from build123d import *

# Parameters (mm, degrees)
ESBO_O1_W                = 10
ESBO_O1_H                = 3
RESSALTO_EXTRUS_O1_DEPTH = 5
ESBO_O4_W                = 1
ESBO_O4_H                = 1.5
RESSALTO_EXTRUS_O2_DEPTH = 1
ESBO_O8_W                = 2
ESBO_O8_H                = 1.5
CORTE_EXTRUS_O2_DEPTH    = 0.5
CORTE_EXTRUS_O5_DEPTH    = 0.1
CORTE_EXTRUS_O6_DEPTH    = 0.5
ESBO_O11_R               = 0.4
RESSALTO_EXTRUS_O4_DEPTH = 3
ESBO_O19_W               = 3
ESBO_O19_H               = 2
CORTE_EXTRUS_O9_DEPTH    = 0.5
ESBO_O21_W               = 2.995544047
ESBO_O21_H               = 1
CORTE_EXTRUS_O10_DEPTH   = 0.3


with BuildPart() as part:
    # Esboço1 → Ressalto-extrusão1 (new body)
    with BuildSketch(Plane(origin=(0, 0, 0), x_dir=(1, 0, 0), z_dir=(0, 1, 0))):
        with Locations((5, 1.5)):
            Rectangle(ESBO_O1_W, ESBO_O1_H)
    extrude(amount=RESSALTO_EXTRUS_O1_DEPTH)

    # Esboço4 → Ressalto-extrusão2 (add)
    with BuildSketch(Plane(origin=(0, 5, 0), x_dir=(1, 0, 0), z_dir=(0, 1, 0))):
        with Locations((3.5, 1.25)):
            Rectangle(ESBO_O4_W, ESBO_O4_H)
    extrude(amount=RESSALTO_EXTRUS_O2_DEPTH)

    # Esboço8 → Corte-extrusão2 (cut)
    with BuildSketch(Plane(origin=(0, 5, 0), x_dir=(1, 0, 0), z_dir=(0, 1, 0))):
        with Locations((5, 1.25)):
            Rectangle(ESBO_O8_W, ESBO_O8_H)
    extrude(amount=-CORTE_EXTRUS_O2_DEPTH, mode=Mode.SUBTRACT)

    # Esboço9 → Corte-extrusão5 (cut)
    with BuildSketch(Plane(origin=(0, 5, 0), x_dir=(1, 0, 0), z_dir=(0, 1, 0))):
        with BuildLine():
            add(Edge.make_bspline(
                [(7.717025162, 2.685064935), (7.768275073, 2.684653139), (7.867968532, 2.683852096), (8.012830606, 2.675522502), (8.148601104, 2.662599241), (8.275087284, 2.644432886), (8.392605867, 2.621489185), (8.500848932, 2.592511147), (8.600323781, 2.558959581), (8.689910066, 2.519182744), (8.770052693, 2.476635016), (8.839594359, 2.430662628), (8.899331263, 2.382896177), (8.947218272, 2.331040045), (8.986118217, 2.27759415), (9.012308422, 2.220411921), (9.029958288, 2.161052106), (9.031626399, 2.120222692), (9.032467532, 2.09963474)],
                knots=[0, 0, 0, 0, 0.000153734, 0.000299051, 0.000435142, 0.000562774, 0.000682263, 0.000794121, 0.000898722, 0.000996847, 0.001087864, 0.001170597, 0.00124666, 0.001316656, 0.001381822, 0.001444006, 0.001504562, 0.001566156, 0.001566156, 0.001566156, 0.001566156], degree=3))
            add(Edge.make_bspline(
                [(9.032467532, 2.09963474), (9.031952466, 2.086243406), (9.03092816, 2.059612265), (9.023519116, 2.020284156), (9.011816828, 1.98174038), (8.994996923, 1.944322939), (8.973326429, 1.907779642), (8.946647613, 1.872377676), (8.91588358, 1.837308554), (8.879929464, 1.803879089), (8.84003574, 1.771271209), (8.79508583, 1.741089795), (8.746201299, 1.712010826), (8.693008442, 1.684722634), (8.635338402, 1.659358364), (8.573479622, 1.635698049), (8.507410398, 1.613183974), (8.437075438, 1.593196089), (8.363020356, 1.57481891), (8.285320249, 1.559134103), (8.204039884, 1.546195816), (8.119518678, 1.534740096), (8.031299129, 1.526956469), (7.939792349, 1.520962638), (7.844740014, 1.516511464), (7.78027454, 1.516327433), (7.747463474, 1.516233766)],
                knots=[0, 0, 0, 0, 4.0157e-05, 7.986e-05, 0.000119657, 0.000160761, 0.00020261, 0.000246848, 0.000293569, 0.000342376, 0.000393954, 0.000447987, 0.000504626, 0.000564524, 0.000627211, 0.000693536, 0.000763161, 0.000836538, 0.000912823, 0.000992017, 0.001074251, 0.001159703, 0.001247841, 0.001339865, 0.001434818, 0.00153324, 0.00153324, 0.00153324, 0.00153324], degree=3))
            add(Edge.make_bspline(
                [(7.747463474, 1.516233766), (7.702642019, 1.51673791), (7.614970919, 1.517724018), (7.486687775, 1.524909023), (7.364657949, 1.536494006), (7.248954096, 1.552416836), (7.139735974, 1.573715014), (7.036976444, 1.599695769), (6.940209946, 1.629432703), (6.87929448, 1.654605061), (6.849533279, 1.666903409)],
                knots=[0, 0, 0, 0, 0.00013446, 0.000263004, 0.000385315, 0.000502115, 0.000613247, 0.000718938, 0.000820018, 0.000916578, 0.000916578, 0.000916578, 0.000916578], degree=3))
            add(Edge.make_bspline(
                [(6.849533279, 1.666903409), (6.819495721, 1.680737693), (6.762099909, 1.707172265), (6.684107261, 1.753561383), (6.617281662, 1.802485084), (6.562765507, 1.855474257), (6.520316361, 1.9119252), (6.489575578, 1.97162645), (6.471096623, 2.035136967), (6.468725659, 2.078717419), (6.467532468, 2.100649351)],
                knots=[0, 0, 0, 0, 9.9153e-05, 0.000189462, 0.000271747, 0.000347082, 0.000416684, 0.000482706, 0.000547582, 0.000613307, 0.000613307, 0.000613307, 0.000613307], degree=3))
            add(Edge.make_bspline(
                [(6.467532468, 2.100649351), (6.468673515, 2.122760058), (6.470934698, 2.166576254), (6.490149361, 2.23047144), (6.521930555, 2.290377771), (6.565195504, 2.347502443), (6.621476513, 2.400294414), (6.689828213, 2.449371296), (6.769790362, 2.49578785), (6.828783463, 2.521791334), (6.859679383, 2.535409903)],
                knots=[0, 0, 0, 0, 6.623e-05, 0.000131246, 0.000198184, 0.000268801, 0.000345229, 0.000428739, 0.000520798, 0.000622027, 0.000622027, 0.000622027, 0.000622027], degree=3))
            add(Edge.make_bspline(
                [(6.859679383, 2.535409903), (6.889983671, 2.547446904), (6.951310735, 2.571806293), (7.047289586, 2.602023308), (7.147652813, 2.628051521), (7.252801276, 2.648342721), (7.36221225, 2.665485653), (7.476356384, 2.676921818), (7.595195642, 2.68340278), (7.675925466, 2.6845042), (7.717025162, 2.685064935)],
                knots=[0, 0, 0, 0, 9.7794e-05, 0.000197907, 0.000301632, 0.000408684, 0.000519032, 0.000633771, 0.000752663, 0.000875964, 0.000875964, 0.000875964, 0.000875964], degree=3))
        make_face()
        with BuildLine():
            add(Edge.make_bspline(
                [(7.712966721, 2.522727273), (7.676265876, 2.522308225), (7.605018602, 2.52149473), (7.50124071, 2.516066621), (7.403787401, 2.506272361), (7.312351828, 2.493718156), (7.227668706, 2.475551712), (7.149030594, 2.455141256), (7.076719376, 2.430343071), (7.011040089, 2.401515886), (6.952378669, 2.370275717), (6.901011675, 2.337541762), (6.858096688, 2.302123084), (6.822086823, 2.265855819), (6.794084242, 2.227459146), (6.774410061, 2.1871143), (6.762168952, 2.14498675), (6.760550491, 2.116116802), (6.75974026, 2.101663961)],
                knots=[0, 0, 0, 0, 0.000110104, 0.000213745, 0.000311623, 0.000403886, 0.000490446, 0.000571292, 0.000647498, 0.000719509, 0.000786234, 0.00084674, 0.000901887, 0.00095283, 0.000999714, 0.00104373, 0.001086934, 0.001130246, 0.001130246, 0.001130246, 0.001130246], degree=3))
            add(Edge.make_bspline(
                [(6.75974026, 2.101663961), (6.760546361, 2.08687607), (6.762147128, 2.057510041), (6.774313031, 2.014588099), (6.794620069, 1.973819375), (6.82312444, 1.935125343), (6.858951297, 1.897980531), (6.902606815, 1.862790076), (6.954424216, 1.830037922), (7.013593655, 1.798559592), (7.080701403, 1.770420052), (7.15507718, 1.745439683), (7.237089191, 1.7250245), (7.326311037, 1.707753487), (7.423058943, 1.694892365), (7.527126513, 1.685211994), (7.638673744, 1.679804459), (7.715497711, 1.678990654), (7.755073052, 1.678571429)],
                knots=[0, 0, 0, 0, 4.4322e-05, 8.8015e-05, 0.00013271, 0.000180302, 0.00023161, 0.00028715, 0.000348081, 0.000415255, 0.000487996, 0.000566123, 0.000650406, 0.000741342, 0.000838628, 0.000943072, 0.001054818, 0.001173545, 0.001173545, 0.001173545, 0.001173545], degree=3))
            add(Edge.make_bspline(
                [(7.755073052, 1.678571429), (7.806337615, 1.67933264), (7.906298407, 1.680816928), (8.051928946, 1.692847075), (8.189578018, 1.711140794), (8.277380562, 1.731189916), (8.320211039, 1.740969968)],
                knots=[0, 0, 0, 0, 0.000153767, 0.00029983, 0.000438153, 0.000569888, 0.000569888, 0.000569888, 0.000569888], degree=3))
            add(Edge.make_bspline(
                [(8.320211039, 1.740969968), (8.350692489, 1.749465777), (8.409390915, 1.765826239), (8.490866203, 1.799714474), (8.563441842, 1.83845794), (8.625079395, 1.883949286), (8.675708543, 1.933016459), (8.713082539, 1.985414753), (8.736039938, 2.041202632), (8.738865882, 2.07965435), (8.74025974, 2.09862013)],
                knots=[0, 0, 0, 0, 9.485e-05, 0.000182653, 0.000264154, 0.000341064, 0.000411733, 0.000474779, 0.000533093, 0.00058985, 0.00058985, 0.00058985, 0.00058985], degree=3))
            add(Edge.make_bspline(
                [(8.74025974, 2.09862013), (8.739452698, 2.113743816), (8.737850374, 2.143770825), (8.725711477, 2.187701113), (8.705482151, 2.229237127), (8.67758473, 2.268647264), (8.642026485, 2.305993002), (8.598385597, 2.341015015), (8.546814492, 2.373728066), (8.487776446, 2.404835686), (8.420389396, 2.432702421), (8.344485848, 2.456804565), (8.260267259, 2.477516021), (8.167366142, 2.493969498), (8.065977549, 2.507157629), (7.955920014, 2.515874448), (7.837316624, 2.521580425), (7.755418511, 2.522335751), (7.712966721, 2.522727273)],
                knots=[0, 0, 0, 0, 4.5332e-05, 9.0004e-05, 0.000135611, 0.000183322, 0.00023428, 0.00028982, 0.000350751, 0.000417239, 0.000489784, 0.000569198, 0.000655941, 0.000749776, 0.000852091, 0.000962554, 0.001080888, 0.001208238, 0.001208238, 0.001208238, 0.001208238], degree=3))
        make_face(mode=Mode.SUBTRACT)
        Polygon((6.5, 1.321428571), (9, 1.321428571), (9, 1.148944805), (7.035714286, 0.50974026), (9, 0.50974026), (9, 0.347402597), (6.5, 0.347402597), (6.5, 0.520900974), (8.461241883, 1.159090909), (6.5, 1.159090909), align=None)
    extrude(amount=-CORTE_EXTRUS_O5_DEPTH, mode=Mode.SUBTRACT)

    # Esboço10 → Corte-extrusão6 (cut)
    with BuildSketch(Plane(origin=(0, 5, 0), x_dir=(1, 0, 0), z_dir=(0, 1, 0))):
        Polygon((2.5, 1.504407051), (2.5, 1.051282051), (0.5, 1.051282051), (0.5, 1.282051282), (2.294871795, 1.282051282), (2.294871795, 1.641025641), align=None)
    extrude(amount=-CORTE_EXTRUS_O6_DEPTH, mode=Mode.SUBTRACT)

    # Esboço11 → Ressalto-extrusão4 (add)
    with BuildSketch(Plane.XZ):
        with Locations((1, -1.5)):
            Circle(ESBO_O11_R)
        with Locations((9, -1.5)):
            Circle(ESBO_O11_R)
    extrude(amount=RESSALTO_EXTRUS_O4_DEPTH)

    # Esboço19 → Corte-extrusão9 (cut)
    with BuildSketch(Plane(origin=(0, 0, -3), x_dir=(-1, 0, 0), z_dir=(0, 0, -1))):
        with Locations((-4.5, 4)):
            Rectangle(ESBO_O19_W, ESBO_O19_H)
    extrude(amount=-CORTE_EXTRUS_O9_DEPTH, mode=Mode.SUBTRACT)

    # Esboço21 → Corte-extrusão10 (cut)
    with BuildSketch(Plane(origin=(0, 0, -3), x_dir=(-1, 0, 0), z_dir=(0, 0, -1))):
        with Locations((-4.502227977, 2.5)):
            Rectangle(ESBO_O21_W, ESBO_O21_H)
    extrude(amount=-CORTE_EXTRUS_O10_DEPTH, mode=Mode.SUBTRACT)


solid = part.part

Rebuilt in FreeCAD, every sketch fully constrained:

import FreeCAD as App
import Part
import Sketcher

V = App.Vector

doc = App.newDocument("Part")
body = doc.addObject("PartDesign::Body", "Body")

# Sketch on XZ plane
sketch1 = doc.addObject("Sketcher::SketchObject", "Sketch")
body.addObject(sketch1)
sketch1.AttachmentSupport = (doc.XZ_Plane, [""])
sketch1.MapMode = "FlatFace"
sketch1.addGeometry([
    Part.LineSegment(V(0, -3, 0), V(0, 0, 0)),
    Part.LineSegment(V(0, 0, 0), V(10, 0, 0)),
    Part.LineSegment(V(10, 0, 0), V(10, -3, 0)),
    Part.LineSegment(V(10, -3, 0), V(0, -3, 0)),
], False)
sketch1.addConstraint([
    Sketcher.Constraint("Coincident", 0, 2, 1, 1),
    Sketcher.Constraint("Coincident", 1, 2, 2, 1),
    Sketcher.Constraint("Coincident", 2, 2, 3, 1),
    Sketcher.Constraint("Coincident", 3, 2, 0, 1),
    Sketcher.Constraint("Vertical", 0),
    Sketcher.Constraint("Horizontal", 1),
    Sketcher.Constraint("Vertical", 2),
    Sketcher.Constraint("Horizontal", 3),
    Sketcher.Constraint("Coincident", 0, 2, -1, 1),
    Sketcher.Constraint("DistanceX", 1, 1, 1, 2, 10.0),
    Sketcher.Constraint("DistanceY", 0, 1, 0, 2, 3.0),
])
pad1 = doc.addObject("PartDesign::Pad", "Pad")
body.addObject(pad1)
pad1.Profile = sketch1
pad1.Length = 5
pad1.Reversed = True

# Sketch on XZ plane
sketch2 = doc.addObject("Sketcher::SketchObject", "Sketch001")
body.addObject(sketch2)
sketch2.AttachmentSupport = (doc.XZ_Plane, [""])
sketch2.MapMode = "FlatFace"
sketch2.AttachmentOffset = App.Placement(V(0, 0, -5), App.Rotation())
sketch2.addGeometry([
    Part.LineSegment(V(3, -2, 0), V(3, -0.5, 0)),
    Part.LineSegment(V(3, -0.5, 0), V(4, -0.5, 0)),
    Part.LineSegment(V(4, -0.5, 0), V(4, -2, 0)),
    Part.LineSegment(V(4, -2, 0), V(3, -2, 0)),
], False)
sketch2.addConstraint([
    Sketcher.Constraint("Coincident", 0, 2, 1, 1),
    Sketcher.Constraint("Coincident", 1, 2, 2, 1),
    Sketcher.Constraint("Coincident", 2, 2, 3, 1),
    Sketcher.Constraint("Coincident", 3, 2, 0, 1),
    Sketcher.Constraint("Vertical", 0),
    Sketcher.Constraint("Horizontal", 1),
    Sketcher.Constraint("Vertical", 2),
    Sketcher.Constraint("Horizontal", 3),
    Sketcher.Constraint("DistanceX", 1, 1, 1, 2, 1.0),
    Sketcher.Constraint("DistanceY", 0, 1, 0, 2, 1.5),
    Sketcher.Constraint("DistanceX", -1, 1, 0, 2, 3.0),
    Sketcher.Constraint("DistanceY", 2, 2, -1, 1, 2.0),
])
pad2 = doc.addObject("PartDesign::Pad", "Pad001")
body.addObject(pad2)
pad2.Profile = sketch2
pad2.Length = 1
pad2.Reversed = True

# Sketch on XZ plane
sketch3 = doc.addObject("Sketcher::SketchObject", "Sketch002")
body.addObject(sketch3)
sketch3.AttachmentSupport = (doc.XZ_Plane, [""])
sketch3.MapMode = "FlatFace"
sketch3.AttachmentOffset = App.Placement(V(0, 0, -5), App.Rotation())
sketch3.addGeometry([
    Part.LineSegment(V(4, -2, 0), V(4, -0.5, 0)),
    Part.LineSegment(V(4, -0.5, 0), V(6, -0.5, 0)),
    Part.LineSegment(V(6, -0.5, 0), V(6, -2, 0)),
    Part.LineSegment(V(6, -2, 0), V(4, -2, 0)),
], False)
sketch3.addConstraint([
    Sketcher.Constraint("Coincident", 0, 2, 1, 1),
    Sketcher.Constraint("Coincident", 1, 2, 2, 1),
    Sketcher.Constraint("Coincident", 2, 2, 3, 1),
    Sketcher.Constraint("Coincident", 3, 2, 0, 1),
    Sketcher.Constraint("Vertical", 0),
    Sketcher.Constraint("Horizontal", 1),
    Sketcher.Constraint("Vertical", 2),
    Sketcher.Constraint("Horizontal", 3),
    Sketcher.Constraint("DistanceX", 1, 1, 1, 2, 2.0),
    Sketcher.Constraint("DistanceY", 0, 1, 0, 2, 1.5),
    Sketcher.Constraint("DistanceX", -1, 1, 0, 2, 4.0),
    Sketcher.Constraint("DistanceY", 2, 2, -1, 1, 2.0),
])
pocket1 = doc.addObject("PartDesign::Pocket", "Pocket")
body.addObject(pocket1)
pocket1.Profile = sketch3
pocket1.Length = 0.5
pocket1.Reversed = True

# Sketch on XZ plane
sketch4 = doc.addObject("Sketcher::SketchObject", "Sketch003")
body.addObject(sketch4)
sketch4.AttachmentSupport = (doc.XZ_Plane, [""])
sketch4.MapMode = "FlatFace"
sketch4.AttachmentOffset = App.Placement(V(0, 0, -5), App.Rotation())
sketch4.addGeometry([
    Part.BSplineCurve([V(7.717025, -2.685065, 0), V(7.768275, -2.684653, 0), V(7.867969, -2.683852, 0), V(8.012831, -2.675523, 0), V(8.148601, -2.662599, 0), V(8.275087, -2.644433, 0), V(8.392606, -2.621489, 0), V(8.500849, -2.592511, 0), V(8.600324, -2.55896, 0), V(8.68991, -2.519183, 0), V(8.770053, -2.476635, 0), V(8.839594, -2.430663, 0), V(8.899331, -2.382896, 0), V(8.947218, -2.33104, 0), V(8.986118, -2.277594, 0), V(9.012308, -2.220412, 0), V(9.029958, -2.161052, 0), V(9.031626, -2.120223, 0), V(9.032468, -2.099635, 0)], [4, 1, 1, 1, 1, 1, 1, 1, 1, 1, 1, 1, 1, 1, 1, 1, 4], [0, 0.000153734, 0.000299051, 0.000435142, 0.000562774, 0.000682263, 0.000794121, 0.000898722, 0.000996847, 0.001087864, 0.001170597, 0.00124666, 0.001316656, 0.001381822, 0.001444006, 0.001504562, 0.001566156], False, 3, [1, 1, 1, 1, 1, 1, 1, 1, 1, 1, 1, 1, 1, 1, 1, 1, 1, 1, 1], False),  # 0
    Part.BSplineCurve([V(6.859679, -2.53541, 0), V(6.889984, -2.547447, 0), V(6.951311, -2.571806, 0), V(7.04729, -2.602023, 0), V(7.147653, -2.628052, 0), V(7.252801, -2.648343, 0), V(7.362212, -2.665486, 0), V(7.476356, -2.676922, 0), V(7.595196, -2.683403, 0), V(7.675925, -2.684504, 0), V(7.717025, -2.685065, 0)], [4, 1, 1, 1, 1, 1, 1, 1, 4], [0, 0.000097794, 0.000197907, 0.000301632, 0.000408684, 0.000519032, 0.000633771, 0.000752663, 0.000875964], False, 3, [1, 1, 1, 1, 1, 1, 1, 1, 1, 1, 1], False),  # 1
    Part.BSplineCurve([V(6.467532, -2.100649, 0), V(6.468674, -2.12276, 0), V(6.470935, -2.166576, 0), V(6.490149, -2.230471, 0), V(6.521931, -2.290378, 0), V(6.565196, -2.347502, 0), V(6.621477, -2.400294, 0), V(6.689828, -2.449371, 0), V(6.76979, -2.495788, 0), V(6.828783, -2.521791, 0), V(6.859679, -2.53541, 0)], [4, 1, 1, 1, 1, 1, 1, 1, 4], [0, 0.00006623, 0.000131246, 0.000198184, 0.000268801, 0.000345229, 0.000428739, 0.000520798, 0.000622027], False, 3, [1, 1, 1, 1, 1, 1, 1, 1, 1, 1, 1], False),  # 2
    Part.BSplineCurve([V(6.849533, -1.666903, 0), V(6.819496, -1.680738, 0), V(6.7621, -1.707172, 0), V(6.684107, -1.753561, 0), V(6.617282, -1.802485, 0), V(6.562766, -1.855474, 0), V(6.520316, -1.911925, 0), V(6.489576, -1.971626, 0), V(6.471097, -2.035137, 0), V(6.468726, -2.078717, 0), V(6.467532, -2.100649, 0)], [4, 1, 1, 1, 1, 1, 1, 1, 4], [0, 0.000099153, 0.000189462, 0.000271747, 0.000347082, 0.000416684, 0.000482706, 0.000547582, 0.000613307], False, 3, [1, 1, 1, 1, 1, 1, 1, 1, 1, 1, 1], False),  # 3
    Part.BSplineCurve([V(7.747463, -1.516234, 0), V(7.702642, -1.516738, 0), V(7.614971, -1.517724, 0), V(7.486688, -1.524909, 0), V(7.364658, -1.536494, 0), V(7.248954, -1.552417, 0), V(7.139736, -1.573715, 0), V(7.036976, -1.599696, 0), V(6.94021, -1.629433, 0), V(6.879294, -1.654605, 0), V(6.849533, -1.666903, 0)], [4, 1, 1, 1, 1, 1, 1, 1, 4], [0, 0.00013446, 0.000263004, 0.000385315, 0.000502115, 0.000613247, 0.000718938, 0.000820018, 0.000916578], False, 3, [1, 1, 1, 1, 1, 1, 1, 1, 1, 1, 1], False),  # 4
    Part.BSplineCurve([V(9.032468, -2.099635, 0), V(9.031952, -2.086243, 0), V(9.030928, -2.059612, 0), V(9.023519, -2.020284, 0), V(9.011817, -1.98174, 0), V(8.994997, -1.944323, 0), V(8.973326, -1.90778, 0), V(8.946648, -1.872378, 0), V(8.915884, -1.837309, 0), V(8.879929, -1.803879, 0), V(8.840036, -1.771271, 0), V(8.795086, -1.74109, 0), V(8.746201, -1.712011, 0), V(8.693008, -1.684723, 0), V(8.635338, -1.659358, 0), V(8.57348, -1.635698, 0), V(8.50741, -1.613184, 0), V(8.437075, -1.593196, 0), V(8.36302, -1.574819, 0), V(8.28532, -1.559134, 0), V(8.20404, -1.546196, 0), V(8.119519, -1.53474, 0), V(8.031299, -1.526956, 0), V(7.939792, -1.520963, 0), V(7.84474, -1.516511, 0), V(7.780275, -1.516327, 0), V(7.747463, -1.516234, 0)], [4, 1, 1, 1, 1, 1, 1, 1, 1, 1, 1, 1, 1, 1, 1, 1, 1, 1, 1, 1, 1, 1, 1, 1, 4], [0, 0.000040157, 0.00007986, 0.000119657, 0.000160761, 0.00020261, 0.000246848, 0.000293569, 0.000342376, 0.000393954, 0.000447987, 0.000504626, 0.000564524, 0.000627211, 0.000693536, 0.000763161, 0.000836538, 0.000912823, 0.000992017, 0.001074251, 0.001159703, 0.001247841, 0.001339865, 0.001434818, 0.00153324], False, 3, [1, 1, 1, 1, 1, 1, 1, 1, 1, 1, 1, 1, 1, 1, 1, 1, 1, 1, 1, 1, 1, 1, 1, 1, 1, 1, 1], False),  # 5
    Part.BSplineCurve([V(8.74026, -2.09862, 0), V(8.739453, -2.113744, 0), V(8.73785, -2.143771, 0), V(8.725711, -2.187701, 0), V(8.705482, -2.229237, 0), V(8.677585, -2.268647, 0), V(8.642026, -2.305993, 0), V(8.598386, -2.341015, 0), V(8.546814, -2.373728, 0), V(8.487776, -2.404836, 0), V(8.420389, -2.432702, 0), V(8.344486, -2.456805, 0), V(8.260267, -2.477516, 0), V(8.167366, -2.493969, 0), V(8.065978, -2.507158, 0), V(7.95592, -2.515874, 0), V(7.837317, -2.52158, 0), V(7.755419, -2.522336, 0), V(7.712967, -2.522727, 0)], [4, 1, 1, 1, 1, 1, 1, 1, 1, 1, 1, 1, 1, 1, 1, 1, 4], [0, 0.000045332, 0.000090004, 0.000135611, 0.000183322, 0.00023428, 0.00028982, 0.000350751, 0.000417239, 0.000489784, 0.000569198, 0.000655941, 0.000749776, 0.000852091, 0.000962554, 0.001080888, 0.001208238], False, 3, [1, 1, 1, 1, 1, 1, 1, 1, 1, 1, 1, 1, 1, 1, 1, 1, 1, 1, 1], False),  # 6
    Part.BSplineCurve([V(8.320211, -1.74097, 0), V(8.350692, -1.749466, 0), V(8.409391, -1.765826, 0), V(8.490866, -1.799714, 0), V(8.563442, -1.838458, 0), V(8.625079, -1.883949, 0), V(8.675709, -1.933016, 0), V(8.713083, -1.985415, 0), V(8.73604, -2.041203, 0), V(8.738866, -2.079654, 0), V(8.74026, -2.09862, 0)], [4, 1, 1, 1, 1, 1, 1, 1, 4], [0, 0.00009485, 0.000182653, 0.000264154, 0.000341064, 0.000411733, 0.000474779, 0.000533093, 0.00058985], False, 3, [1, 1, 1, 1, 1, 1, 1, 1, 1, 1, 1], False),  # 7
    Part.BSplineCurve([V(7.755073, -1.678571, 0), V(7.806338, -1.679333, 0), V(7.906298, -1.680817, 0), V(8.051929, -1.692847, 0), V(8.189578, -1.711141, 0), V(8.277381, -1.73119, 0), V(8.320211, -1.74097, 0)], [4, 1, 1, 1, 4], [0, 0.000153767, 0.00029983, 0.000438153, 0.000569888], False, 3, [1, 1, 1, 1, 1, 1, 1], False),  # 8
    Part.BSplineCurve([V(6.75974, -2.101664, 0), V(6.760546, -2.086876, 0), V(6.762147, -2.05751, 0), V(6.774313, -2.014588, 0), V(6.79462, -1.973819, 0), V(6.823124, -1.935125, 0), V(6.858951, -1.897981, 0), V(6.902607, -1.86279, 0), V(6.954424, -1.830038, 0), V(7.013594, -1.79856, 0), V(7.080701, -1.77042, 0), V(7.155077, -1.74544, 0), V(7.237089, -1.725024, 0), V(7.326311, -1.707753, 0), V(7.423059, -1.694892, 0), V(7.527127, -1.685212, 0), V(7.638674, -1.679804, 0), V(7.715498, -1.678991, 0), V(7.755073, -1.678571, 0)], [4, 1, 1, 1, 1, 1, 1, 1, 1, 1, 1, 1, 1, 1, 1, 1, 4], [0, 0.000044322, 0.000088015, 0.00013271, 0.000180302, 0.00023161, 0.00028715, 0.000348081, 0.000415255, 0.000487996, 0.000566123, 0.000650406, 0.000741342, 0.000838628, 0.000943072, 0.001054818, 0.001173545], False, 3, [1, 1, 1, 1, 1, 1, 1, 1, 1, 1, 1, 1, 1, 1, 1, 1, 1, 1, 1], False),  # 9
    Part.BSplineCurve([V(7.712967, -2.522727, 0), V(7.676266, -2.522308, 0), V(7.605019, -2.521495, 0), V(7.501241, -2.516067, 0), V(7.403787, -2.506272, 0), V(7.312352, -2.493718, 0), V(7.227669, -2.475552, 0), V(7.149031, -2.455141, 0), V(7.076719, -2.430343, 0), V(7.01104, -2.401516, 0), V(6.952379, -2.370276, 0), V(6.901012, -2.337542, 0), V(6.858097, -2.302123, 0), V(6.822087, -2.265856, 0), V(6.794084, -2.227459, 0), V(6.77441, -2.187114, 0), V(6.762169, -2.144987, 0), V(6.76055, -2.116117, 0), V(6.75974, -2.101664, 0)], [4, 1, 1, 1, 1, 1, 1, 1, 1, 1, 1, 1, 1, 1, 1, 1, 4], [0, 0.000110104, 0.000213745, 0.000311623, 0.000403886, 0.000490446, 0.000571292, 0.000647498, 0.000719509, 0.000786234, 0.00084674, 0.000901887, 0.00095283, 0.000999714, 0.00104373, 0.001086934, 0.001130246], False, 3, [1, 1, 1, 1, 1, 1, 1, 1, 1, 1, 1, 1, 1, 1, 1, 1, 1, 1, 1], False),  # 10
    Part.LineSegment(V(9, -1.321429, 0), V(6.5, -1.321429, 0)),  # 11
    Part.LineSegment(V(6.5, -1.321429, 0), V(6.5, -1.159091, 0)),  # 12
    Part.LineSegment(V(6.5, -1.159091, 0), V(8.461242, -1.159091, 0)),  # 13
    Part.LineSegment(V(8.461242, -1.159091, 0), V(6.5, -0.520901, 0)),  # 14
    Part.LineSegment(V(6.5, -0.520901, 0), V(6.5, -0.347403, 0)),  # 15
    Part.LineSegment(V(6.5, -0.347403, 0), V(9, -0.347403, 0)),  # 16
    Part.LineSegment(V(9, -0.347403, 0), V(9, -0.50974, 0)),  # 17
    Part.LineSegment(V(9, -0.50974, 0), V(7.035714, -0.50974, 0)),  # 18
    Part.LineSegment(V(7.035714, -0.50974, 0), V(9, -1.148945, 0)),  # 19
    Part.LineSegment(V(9, -1.148945, 0), V(9, -1.321429, 0)),  # 20
], False)
sketch4.addConstraint([
    Sketcher.Constraint("Block", 0),
    Sketcher.Constraint("Block", 1),
    Sketcher.Constraint("Block", 2),
    Sketcher.Constraint("Block", 3),
    Sketcher.Constraint("Block", 4),
    Sketcher.Constraint("Block", 5),
    Sketcher.Constraint("Block", 6),
    Sketcher.Constraint("Block", 7),
    Sketcher.Constraint("Block", 8),
    Sketcher.Constraint("Block", 9),
    Sketcher.Constraint("Block", 10),
    Sketcher.Constraint("Coincident", 11, 2, 12, 1),
    Sketcher.Constraint("Coincident", 12, 2, 13, 1),
    Sketcher.Constraint("Coincident", 13, 2, 14, 1),
    Sketcher.Constraint("Coincident", 14, 2, 15, 1),
    Sketcher.Constraint("Coincident", 15, 2, 16, 1),
    Sketcher.Constraint("Coincident", 16, 2, 17, 1),
    Sketcher.Constraint("Coincident", 17, 2, 18, 1),
    Sketcher.Constraint("Coincident", 18, 2, 19, 1),
    Sketcher.Constraint("Coincident", 19, 2, 20, 1),
    Sketcher.Constraint("Coincident", 20, 2, 11, 1),
    Sketcher.Constraint("Horizontal", 11),
    Sketcher.Constraint("Vertical", 12),
    Sketcher.Constraint("Horizontal", 13),
    Sketcher.Constraint("Vertical", 15),
    Sketcher.Constraint("Horizontal", 16),
    Sketcher.Constraint("Vertical", 17),
    Sketcher.Constraint("Horizontal", 18),
    Sketcher.Constraint("Vertical", 20),
    Sketcher.Constraint("Vertical", 12, 2, 14, 2),
    Sketcher.Constraint("Vertical", 17, 2, 19, 2),
    Sketcher.Constraint("Equal", 12, 17),
    Sketcher.Constraint("DistanceX", 11, 2, 11, 1, 2.5),
    Sketcher.Constraint("DistanceX", -1, 1, 16, 2, 9.0),
    Sketcher.Constraint("DistanceY", 15, 1, 15, 2, 0.173498),
    Sketcher.Constraint("DistanceX", 13, 1, 13, 2, 1.961242),
    Sketcher.Constraint("DistanceY", 14, 2, -1, 1, 0.520901),
    Sketcher.Constraint("DistanceX", 18, 2, 18, 1, 1.964286),
    Sketcher.Constraint("DistanceY", 12, 1, 12, 2, 0.162338),
    Sketcher.Constraint("DistanceY", 20, 2, 20, 1, 0.172484),
    Sketcher.Constraint("DistanceY", 11, 2, -1, 1, 1.321429),
])
pocket2 = doc.addObject("PartDesign::Pocket", "Pocket001")
body.addObject(pocket2)
pocket2.Profile = sketch4
pocket2.Length = 0.1
pocket2.Reversed = True

# Sketch on XZ plane
sketch5 = doc.addObject("Sketcher::SketchObject", "Sketch004")
body.addObject(sketch5)
sketch5.AttachmentSupport = (doc.XZ_Plane, [""])
sketch5.MapMode = "FlatFace"
sketch5.AttachmentOffset = App.Placement(V(0, 0, -5), App.Rotation())
sketch5.addGeometry([
    Part.LineSegment(V(2.5, -1.05, 0), V(2.5, -1.5, 0)),  # 0
    Part.LineSegment(V(2.5, -1.5, 0), V(2.29, -1.64, 0)),  # 1
    Part.LineSegment(V(2.29, -1.64, 0), V(2.29, -1.28, 0)),  # 2
    Part.LineSegment(V(2.29, -1.28, 0), V(0.5, -1.28, 0)),  # 3
    Part.LineSegment(V(0.5, -1.28, 0), V(0.5, -1.05, 0)),  # 4
    Part.LineSegment(V(0.5, -1.05, 0), V(2.5, -1.05, 0)),  # 5
], False)
sketch5.addConstraint([
    Sketcher.Constraint("Coincident", 0, 2, 1, 1),
    Sketcher.Constraint("Coincident", 1, 2, 2, 1),
    Sketcher.Constraint("Coincident", 2, 2, 3, 1),
    Sketcher.Constraint("Coincident", 3, 2, 4, 1),
    Sketcher.Constraint("Coincident", 4, 2, 5, 1),
    Sketcher.Constraint("Coincident", 5, 2, 0, 1),
    Sketcher.Constraint("Vertical", 0),
    Sketcher.Constraint("Vertical", 2),
    Sketcher.Constraint("Horizontal", 3),
    Sketcher.Constraint("Vertical", 4),
    Sketcher.Constraint("Horizontal", 5),
    Sketcher.Constraint("DistanceX", 5, 1, 5, 2, 2.0),
    Sketcher.Constraint("DistanceX", -1, 1, 0, 2, 2.5),
    Sketcher.Constraint("DistanceX", 3, 2, 3, 1, 1.794872),
    Sketcher.Constraint("DistanceY", 4, 1, 4, 2, 0.230769),
    Sketcher.Constraint("Distance", 1, 0.246459),
    Sketcher.Constraint("DistanceY", 0, 2, 0, 1, 0.453125),
    Sketcher.Constraint("DistanceY", 2, 2, -1, 1, 1.282051),
])
pocket3 = doc.addObject("PartDesign::Pocket", "Pocket002")
body.addObject(pocket3)
pocket3.Profile = sketch5
pocket3.Length = 0.5
pocket3.Reversed = True

# Sketch on XZ plane
sketch6 = doc.addObject("Sketcher::SketchObject", "Sketch005")
body.addObject(sketch6)
sketch6.AttachmentSupport = (doc.XZ_Plane, [""])
sketch6.MapMode = "FlatFace"
sketch6.addGeometry([
    Part.Circle(V(1, -1.5, 0), V(0, 0, 1), 0.4),
    Part.Circle(V(9, -1.5, 0), V(0, 0, 1), 0.4),
], False)
sketch6.addConstraint([
    Sketcher.Constraint("Equal", 0, 1),
    Sketcher.Constraint("Horizontal", 0, 3, 1, 3),
    Sketcher.Constraint("Diameter", 0, 0.8),
    Sketcher.Constraint("DistanceX", -1, 1, 0, 3, 1.0),
    Sketcher.Constraint("DistanceX", -1, 1, 1, 3, 9.0),
    Sketcher.Constraint("DistanceY", 0, 3, -1, 1, 1.5),
])
pad3 = doc.addObject("PartDesign::Pad", "Pad002")
body.addObject(pad3)
pad3.Profile = sketch6
pad3.Length = 3

# Sketch on XY plane
sketch7 = doc.addObject("Sketcher::SketchObject", "Sketch006")
body.addObject(sketch7)
sketch7.AttachmentSupport = (doc.XY_Plane, [""])
sketch7.MapMode = "FlatFace"
sketch7.AttachmentOffset = App.Placement(V(0, 0, -3), App.Rotation())
sketch7.addGeometry([
    Part.LineSegment(V(6, 5, 0), V(6, 3, 0)),
    Part.LineSegment(V(6, 3, 0), V(3, 3, 0)),
    Part.LineSegment(V(3, 3, 0), V(3, 5, 0)),
    Part.LineSegment(V(3, 5, 0), V(6, 5, 0)),
], False)
sketch7.addConstraint([
    Sketcher.Constraint("Coincident", 0, 2, 1, 1),
    Sketcher.Constraint("Coincident", 1, 2, 2, 1),
    Sketcher.Constraint("Coincident", 2, 2, 3, 1),
    Sketcher.Constraint("Coincident", 3, 2, 0, 1),
    Sketcher.Constraint("Vertical", 0),
    Sketcher.Constraint("Horizontal", 1),
    Sketcher.Constraint("Vertical", 2),
    Sketcher.Constraint("Horizontal", 3),
    Sketcher.Constraint("DistanceX", 1, 2, 1, 1, 3.0),
    Sketcher.Constraint("DistanceY", 0, 2, 0, 1, 2.0),
    Sketcher.Constraint("DistanceX", -1, 1, 0, 2, 6.0),
    Sketcher.Constraint("DistanceY", -1, 1, 0, 2, 3.0),
])
pocket4 = doc.addObject("PartDesign::Pocket", "Pocket003")
body.addObject(pocket4)
pocket4.Profile = sketch7
pocket4.Length = 0.5
pocket4.Reversed = True

# Sketch on XY plane
sketch8 = doc.addObject("Sketcher::SketchObject", "Sketch007")
body.addObject(sketch8)
sketch8.AttachmentSupport = (doc.XY_Plane, [""])
sketch8.MapMode = "FlatFace"
sketch8.AttachmentOffset = App.Placement(V(0, 0, -3), App.Rotation())
sketch8.addGeometry([
    Part.LineSegment(V(6, 3, 0), V(6, 2, 0)),
    Part.LineSegment(V(6, 2, 0), V(3, 2, 0)),
    Part.LineSegment(V(3, 2, 0), V(3, 3, 0)),
    Part.LineSegment(V(3, 3, 0), V(6, 3, 0)),
], False)
sketch8.addConstraint([
    Sketcher.Constraint("Coincident", 0, 2, 1, 1),
    Sketcher.Constraint("Coincident", 1, 2, 2, 1),
    Sketcher.Constraint("Coincident", 2, 2, 3, 1),
    Sketcher.Constraint("Coincident", 3, 2, 0, 1),
    Sketcher.Constraint("Vertical", 0),
    Sketcher.Constraint("Horizontal", 1),
    Sketcher.Constraint("Vertical", 2),
    Sketcher.Constraint("Horizontal", 3),
    Sketcher.Constraint("DistanceY", 0, 2, 0, 1, 1.0),
    Sketcher.Constraint("DistanceX", -1, 1, 0, 2, 6.0),
    Sketcher.Constraint("DistanceY", -1, 1, 0, 2, 2.0),
    Sketcher.Constraint("DistanceX", 1, 2, 1, 1, 2.995544),
])
pocket5 = doc.addObject("PartDesign::Pocket", "Pocket004")
body.addObject(pocket5)
pocket5.Profile = sketch8
pocket5.Length = 0.3
pocket5.Reversed = True

doc.recompute()
